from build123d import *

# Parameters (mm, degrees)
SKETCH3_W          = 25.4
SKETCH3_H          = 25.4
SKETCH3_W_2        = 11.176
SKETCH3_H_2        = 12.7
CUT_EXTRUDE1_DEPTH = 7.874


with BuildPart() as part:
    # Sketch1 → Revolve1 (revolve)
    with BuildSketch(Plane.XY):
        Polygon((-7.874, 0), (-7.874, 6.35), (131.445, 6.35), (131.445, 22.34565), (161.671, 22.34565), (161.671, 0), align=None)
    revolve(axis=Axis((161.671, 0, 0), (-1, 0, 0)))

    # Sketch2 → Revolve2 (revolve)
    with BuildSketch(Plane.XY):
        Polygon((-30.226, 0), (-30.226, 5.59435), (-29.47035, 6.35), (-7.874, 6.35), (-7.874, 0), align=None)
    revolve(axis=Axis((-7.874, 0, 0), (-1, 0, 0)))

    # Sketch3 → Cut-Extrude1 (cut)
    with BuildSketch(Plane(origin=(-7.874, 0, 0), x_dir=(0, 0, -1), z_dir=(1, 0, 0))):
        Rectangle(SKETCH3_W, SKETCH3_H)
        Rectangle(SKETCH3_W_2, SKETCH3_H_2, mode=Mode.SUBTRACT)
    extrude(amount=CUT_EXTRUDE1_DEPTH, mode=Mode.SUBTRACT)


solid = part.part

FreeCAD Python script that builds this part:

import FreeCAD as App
import Part
import Sketcher
Q = App.Units.Quantity

doc = App.newDocument("Part")
body = doc.addObject("PartDesign::Body", "Body")

# Sketch on XY plane
sketch1 = doc.addObject("Sketcher::SketchObject", "Sketch")
body.addObject(sketch1)
sketch1.AttachmentSupport = (doc.XY_Plane, [""])
sketch1.MapMode = "FlatFace"
sketch1.addGeometry([
    Part.LineSegment(App.Vector(-7.874, 6.35, 0), App.Vector(-7.874, 0, 0)),  # 0
    Part.LineSegment(App.Vector(-7.874, 0, 0), App.Vector(161.671, 0, 0)),  # 1
    Part.LineSegment(App.Vector(161.671, 0, 0), App.Vector(161.671, 22.34565, 0)),  # 2
    Part.LineSegment(App.Vector(161.671, 22.34565, 0), App.Vector(131.445, 22.34565, 0)),  # 3
    Part.LineSegment(App.Vector(131.445, 22.34565, 0), App.Vector(131.445, 6.35, 0)),  # 4
    Part.LineSegment(App.Vector(131.445, 6.35, 0), App.Vector(-7.874, 6.35, 0)),  # 5
], False)
sketch1.addConstraint([
    Sketcher.Constraint("Coincident", 0, 2, 1, 1),
    Sketcher.Constraint("Coincident", 1, 2, 2, 1),
    Sketcher.Constraint("Coincident", 2, 2, 3, 1),
    Sketcher.Constraint("Coincident", 3, 2, 4, 1),
    Sketcher.Constraint("Coincident", 4, 2, 5, 1),
    Sketcher.Constraint("Coincident", 5, 2, 0, 1),
    Sketcher.Constraint("Vertical", 0),
    Sketcher.Constraint("Horizontal", 1),
    Sketcher.Constraint("Vertical", 2),
    Sketcher.Constraint("Horizontal", 3),
    Sketcher.Constraint("Vertical", 4),
    Sketcher.Constraint("Horizontal", 5),
    Sketcher.Constraint("PointOnObject", 0, 2, -1),
    Sketcher.Constraint("DistanceX", 3, 2, 3, 1, Q("1.19 in")),
    Sketcher.Constraint("DistanceY", 0, 2, 0, 1, Q("0.25 in")),
    Sketcher.Constraint("DistanceX", 1, 1, 1, 2, Q("6.675 in")),
    Sketcher.Constraint("DistanceX", 0, 2, -1, 1, Q("0.31 in")),
    Sketcher.Constraint("DistanceY", 2, 1, 2, 2, 22.34565),
])
revolution = doc.addObject("PartDesign::Revolution", "Revolution")
body.addObject(revolution)
revolution.Profile = sketch1
revolution.ReferenceAxis = (sketch1, ["H_Axis"])
revolution.Angle = 360

# Sketch on XY plane
sketch2 = doc.addObject("Sketcher::SketchObject", "Sketch001")
body.addObject(sketch2)
sketch2.AttachmentSupport = (doc.XY_Plane, [""])
sketch2.MapMode = "FlatFace"
sketch2.addGeometry([
    Part.LineSegment(App.Vector(-30.226, 5.59435, 0), App.Vector(-30.226, 0, 0)),  # 0
    Part.LineSegment(App.Vector(-30.226, 0, 0), App.Vector(-7.874, 0, 0)),  # 1
    Part.LineSegment(App.Vector(-7.874, 0, 0), App.Vector(-7.874, 6.35, 0)),  # 2
    Part.LineSegment(App.Vector(-7.874, 6.35, 0), App.Vector(-29.47035, 6.35, 0)),  # 3
    Part.LineSegment(App.Vector(-29.47035, 6.35, 0), App.Vector(-30.226, 5.59435, 0)),  # 4
], False)
sketch2.addConstraint([
    Sketcher.Constraint("Coincident", 0, 2, 1, 1),
    Sketcher.Constraint("Coincident", 1, 2, 2, 1),
    Sketcher.Constraint("Coincident", 2, 2, 3, 1),
    Sketcher.Constraint("Coincident", 3, 2, 4, 1),
    Sketcher.Constraint("Coincident", 4, 2, 0, 1),
    Sketcher.Constraint("Vertical", 0),
    Sketcher.Constraint("Horizontal", 1),
    Sketcher.Constraint("Vertical", 2),
    Sketcher.Constraint("Horizontal", 3),
    Sketcher.Constraint("PointOnObject", 0, 2, -1),
    Sketcher.Constraint("Angle", 4, Q("-135 deg")),
    Sketcher.Constraint("DistanceX", 1, 1, 1, 2, Q("0.88 in")),
    Sketcher.Constraint("DistanceY", 2, 1, 2, 2, Q("0.25 in")),
    Sketcher.Constraint("DistanceX", 0, 2, -1, 1, Q("1.19 in")),
    Sketcher.Constraint("DistanceX", 3, 2, 3, 1, 21.59635),
])
revolution2 = doc.addObject("PartDesign::Revolution", "Revolution001")
body.addObject(revolution2)
revolution2.Profile = sketch2
revolution2.ReferenceAxis = (sketch2, ["H_Axis"])
revolution2.Angle = 360

# Sketch on YZ plane
sketch3 = doc.addObject("Sketcher::SketchObject", "Sketch002")
body.addObject(sketch3)
sketch3.AttachmentSupport = (doc.YZ_Plane, [""])
sketch3.MapMode = "FlatFace"
sketch3.AttachmentOffset = App.Placement(App.Vector(0, 0, -0.31 * 25.4), App.Rotation())
sketch3.addGeometry([
    Part.LineSegment(App.Vector(12.7, 12.7, 0), App.Vector(-12.7, 12.7, 0)),  # 0
    Part.LineSegment(App.Vector(-12.7, 12.7, 0), App.Vector(-12.7, -12.7, 0)),  # 1
    Part.LineSegment(App.Vector(-12.7, -12.7, 0), App.Vector(12.7, -12.7, 0)),  # 2
    Part.LineSegment(App.Vector(12.7, -12.7, 0), App.Vector(12.7, 12.7, 0)),  # 3
    Part.LineSegment(App.Vector(-6.35, -5.588, 0), App.Vector(-6.35, 5.588, 0)),  # 4
    Part.LineSegment(App.Vector(-6.35, 5.588, 0), App.Vector(6.35, 5.588, 0)),  # 5
    Part.LineSegment(App.Vector(6.35, 5.588, 0), App.Vector(6.35, -5.588, 0)),  # 6
    Part.LineSegment(App.Vector(6.35, -5.588, 0), App.Vector(-6.35, -5.588, 0)),  # 7
], False)
sketch3.addConstraint([
    Sketcher.Constraint("Coincident", 0, 2, 1, 1),
    Sketcher.Constraint("Coincident", 1, 2, 2, 1),
    Sketcher.Constraint("Coincident", 2, 2, 3, 1),
    Sketcher.Constraint("Coincident", 3, 2, 0, 1),
    Sketcher.Constraint("Coincident", 4, 2, 5, 1),
    Sketcher.Constraint("Coincident", 5, 2, 6, 1),
    Sketcher.Constraint("Coincident", 6, 2, 7, 1),
    Sketcher.Constraint("Coincident", 7, 2, 4, 1),
    Sketcher.Constraint("Horizontal", 0),
    Sketcher.Constraint("Vertical", 1),
    Sketcher.Constraint("Horizontal", 2),
    Sketcher.Constraint("Vertical", 3),
    Sketcher.Constraint("Vertical", 4),
    Sketcher.Constraint("Horizontal", 5),
    Sketcher.Constraint("Vertical", 6),
    Sketcher.Constraint("Horizontal", 7),
    Sketcher.Constraint("Symmetric", 0, 2, 2, 2, -1, 1),
    Sketcher.Constraint("Symmetric", 4, 2, 6, 2, -1, 1),
    Sketcher.Constraint("Equal", 2, 1),
    Sketcher.Constraint("DistanceX", 0, 2, 0, 1, Q("1 in")),
    Sketcher.Constraint("DistanceX", 5, 1, 5, 2, Q("0.5 in")),
    Sketcher.Constraint("DistanceY", 4, 1, 4, 2, Q("0.44 in")),
])
pocket1 = doc.addObject("PartDesign::Pocket", "Pocket")
body.addObject(pocket1)
pocket1.Profile = sketch3
pocket1.Length = Q("0.31 in")
pocket1.Reversed = True

doc.recompute()
